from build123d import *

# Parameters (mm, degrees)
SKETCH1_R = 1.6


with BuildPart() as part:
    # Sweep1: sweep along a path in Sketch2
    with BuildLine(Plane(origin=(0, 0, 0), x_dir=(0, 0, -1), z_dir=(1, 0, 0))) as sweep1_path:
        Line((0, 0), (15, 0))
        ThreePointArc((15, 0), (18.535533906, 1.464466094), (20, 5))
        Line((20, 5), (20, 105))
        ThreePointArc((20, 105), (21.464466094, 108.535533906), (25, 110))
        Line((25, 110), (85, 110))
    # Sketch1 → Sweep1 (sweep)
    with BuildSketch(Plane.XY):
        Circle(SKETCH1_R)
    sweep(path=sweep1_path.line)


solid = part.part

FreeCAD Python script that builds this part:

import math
import FreeCAD as App
import Part
import Sketcher
from FreeCAD import Vector

doc = App.newDocument("Part")
params = doc.addObject("Spreadsheet::Sheet", "Params")
for row, (alias, value) in enumerate([
    ("sketch1_diameter", "3.2 mm"),
    ("sketch2_radius", "5 mm"),
    ("sketch2_width", "100 mm"),
    ("sketch2_height", "15 mm"),
    ("sketch2_height2", "60 mm"),
], start=1):
    params.set(f"A{row}", alias)
    params.set(f"B{row}", "=" + value)
    params.setAlias(f"B{row}", alias)

body = doc.addObject("PartDesign::Body", "Body")

sketch1 = body.newObject("Sketcher::SketchObject", "Sketch")
sketch1.AttachmentSupport = (doc.getObject("XY_Plane"), [""])
sketch1.MapMode = "FlatFace"
sketch1.addGeometry(Part.Circle(Vector(0, 0, 0), Vector(0, 0, 1), 1.6), False)
sketch1.addConstraint([
    Sketcher.Constraint("Coincident", 0, 3, -1, 1),
    Sketcher.Constraint("Diameter", 0, 3.2),
])
sketch1.setExpression("Constraints[1]", "Params.sketch1_diameter")

sketch2 = body.newObject("Sketcher::SketchObject", "Sketch001")
sketch2.AttachmentSupport = (doc.getObject("YZ_Plane"), [""])
sketch2.MapMode = "FlatFace"
sketch2.addGeometry([
    Part.LineSegment(Vector(0, 0, 0), Vector(0, -15, 0)),
    Part.ArcOfCircle(Part.Circle(Vector(5, -15, 0), Vector(0, 0, 1), 5), math.radians(180), math.radians(270)),
    Part.LineSegment(Vector(5, -20, 0), Vector(105, -20, 0)),
    Part.ArcOfCircle(Part.Circle(Vector(105, -25, 0), Vector(0, 0, 1), 5), math.radians(0), math.radians(90)),
    Part.LineSegment(Vector(110, -25, 0), Vector(110, -85, 0)),
], False)
sketch2.addConstraint([
    Sketcher.Constraint("Tangent", 0, 2, 1, 1),
    Sketcher.Constraint("Tangent", 1, 2, 2, 1),
    Sketcher.Constraint("Tangent", 2, 2, 3, 2),
    Sketcher.Constraint("Tangent", 3, 1, 4, 1),
    Sketcher.Constraint("Vertical", 0),
    Sketcher.Constraint("Horizontal", 2),
    Sketcher.Constraint("Vertical", 4),
    Sketcher.Constraint("Coincident", 0, 1, -1, 1),
    Sketcher.Constraint("Equal", 1, 3),
    Sketcher.Constraint("Radius", 1, 5.0),
    Sketcher.Constraint("DistanceX", 2, 1, 2, 2, 100.0),
    Sketcher.Constraint("DistanceY", 0, 2, 0, 1, 15.0),
    Sketcher.Constraint("DistanceY", 4, 2, 4, 1, 60.0),
])
sketch2.setExpression("Constraints[9]", "Params.sketch2_radius")
sketch2.setExpression("Constraints[10]", "Params.sketch2_width")
sketch2.setExpression("Constraints[11]", "Params.sketch2_height")
sketch2.setExpression("Constraints[12]", "Params.sketch2_height2")
doc.recompute()

additivepipe = body.newObject("PartDesign::AdditivePipe", "AdditivePipe")
additivepipe.Profile = sketch1
additivepipe.Spine = (sketch2, ["Edge1", "Edge2", "Edge3", "Edge4", "Edge5"])

doc.recompute()
